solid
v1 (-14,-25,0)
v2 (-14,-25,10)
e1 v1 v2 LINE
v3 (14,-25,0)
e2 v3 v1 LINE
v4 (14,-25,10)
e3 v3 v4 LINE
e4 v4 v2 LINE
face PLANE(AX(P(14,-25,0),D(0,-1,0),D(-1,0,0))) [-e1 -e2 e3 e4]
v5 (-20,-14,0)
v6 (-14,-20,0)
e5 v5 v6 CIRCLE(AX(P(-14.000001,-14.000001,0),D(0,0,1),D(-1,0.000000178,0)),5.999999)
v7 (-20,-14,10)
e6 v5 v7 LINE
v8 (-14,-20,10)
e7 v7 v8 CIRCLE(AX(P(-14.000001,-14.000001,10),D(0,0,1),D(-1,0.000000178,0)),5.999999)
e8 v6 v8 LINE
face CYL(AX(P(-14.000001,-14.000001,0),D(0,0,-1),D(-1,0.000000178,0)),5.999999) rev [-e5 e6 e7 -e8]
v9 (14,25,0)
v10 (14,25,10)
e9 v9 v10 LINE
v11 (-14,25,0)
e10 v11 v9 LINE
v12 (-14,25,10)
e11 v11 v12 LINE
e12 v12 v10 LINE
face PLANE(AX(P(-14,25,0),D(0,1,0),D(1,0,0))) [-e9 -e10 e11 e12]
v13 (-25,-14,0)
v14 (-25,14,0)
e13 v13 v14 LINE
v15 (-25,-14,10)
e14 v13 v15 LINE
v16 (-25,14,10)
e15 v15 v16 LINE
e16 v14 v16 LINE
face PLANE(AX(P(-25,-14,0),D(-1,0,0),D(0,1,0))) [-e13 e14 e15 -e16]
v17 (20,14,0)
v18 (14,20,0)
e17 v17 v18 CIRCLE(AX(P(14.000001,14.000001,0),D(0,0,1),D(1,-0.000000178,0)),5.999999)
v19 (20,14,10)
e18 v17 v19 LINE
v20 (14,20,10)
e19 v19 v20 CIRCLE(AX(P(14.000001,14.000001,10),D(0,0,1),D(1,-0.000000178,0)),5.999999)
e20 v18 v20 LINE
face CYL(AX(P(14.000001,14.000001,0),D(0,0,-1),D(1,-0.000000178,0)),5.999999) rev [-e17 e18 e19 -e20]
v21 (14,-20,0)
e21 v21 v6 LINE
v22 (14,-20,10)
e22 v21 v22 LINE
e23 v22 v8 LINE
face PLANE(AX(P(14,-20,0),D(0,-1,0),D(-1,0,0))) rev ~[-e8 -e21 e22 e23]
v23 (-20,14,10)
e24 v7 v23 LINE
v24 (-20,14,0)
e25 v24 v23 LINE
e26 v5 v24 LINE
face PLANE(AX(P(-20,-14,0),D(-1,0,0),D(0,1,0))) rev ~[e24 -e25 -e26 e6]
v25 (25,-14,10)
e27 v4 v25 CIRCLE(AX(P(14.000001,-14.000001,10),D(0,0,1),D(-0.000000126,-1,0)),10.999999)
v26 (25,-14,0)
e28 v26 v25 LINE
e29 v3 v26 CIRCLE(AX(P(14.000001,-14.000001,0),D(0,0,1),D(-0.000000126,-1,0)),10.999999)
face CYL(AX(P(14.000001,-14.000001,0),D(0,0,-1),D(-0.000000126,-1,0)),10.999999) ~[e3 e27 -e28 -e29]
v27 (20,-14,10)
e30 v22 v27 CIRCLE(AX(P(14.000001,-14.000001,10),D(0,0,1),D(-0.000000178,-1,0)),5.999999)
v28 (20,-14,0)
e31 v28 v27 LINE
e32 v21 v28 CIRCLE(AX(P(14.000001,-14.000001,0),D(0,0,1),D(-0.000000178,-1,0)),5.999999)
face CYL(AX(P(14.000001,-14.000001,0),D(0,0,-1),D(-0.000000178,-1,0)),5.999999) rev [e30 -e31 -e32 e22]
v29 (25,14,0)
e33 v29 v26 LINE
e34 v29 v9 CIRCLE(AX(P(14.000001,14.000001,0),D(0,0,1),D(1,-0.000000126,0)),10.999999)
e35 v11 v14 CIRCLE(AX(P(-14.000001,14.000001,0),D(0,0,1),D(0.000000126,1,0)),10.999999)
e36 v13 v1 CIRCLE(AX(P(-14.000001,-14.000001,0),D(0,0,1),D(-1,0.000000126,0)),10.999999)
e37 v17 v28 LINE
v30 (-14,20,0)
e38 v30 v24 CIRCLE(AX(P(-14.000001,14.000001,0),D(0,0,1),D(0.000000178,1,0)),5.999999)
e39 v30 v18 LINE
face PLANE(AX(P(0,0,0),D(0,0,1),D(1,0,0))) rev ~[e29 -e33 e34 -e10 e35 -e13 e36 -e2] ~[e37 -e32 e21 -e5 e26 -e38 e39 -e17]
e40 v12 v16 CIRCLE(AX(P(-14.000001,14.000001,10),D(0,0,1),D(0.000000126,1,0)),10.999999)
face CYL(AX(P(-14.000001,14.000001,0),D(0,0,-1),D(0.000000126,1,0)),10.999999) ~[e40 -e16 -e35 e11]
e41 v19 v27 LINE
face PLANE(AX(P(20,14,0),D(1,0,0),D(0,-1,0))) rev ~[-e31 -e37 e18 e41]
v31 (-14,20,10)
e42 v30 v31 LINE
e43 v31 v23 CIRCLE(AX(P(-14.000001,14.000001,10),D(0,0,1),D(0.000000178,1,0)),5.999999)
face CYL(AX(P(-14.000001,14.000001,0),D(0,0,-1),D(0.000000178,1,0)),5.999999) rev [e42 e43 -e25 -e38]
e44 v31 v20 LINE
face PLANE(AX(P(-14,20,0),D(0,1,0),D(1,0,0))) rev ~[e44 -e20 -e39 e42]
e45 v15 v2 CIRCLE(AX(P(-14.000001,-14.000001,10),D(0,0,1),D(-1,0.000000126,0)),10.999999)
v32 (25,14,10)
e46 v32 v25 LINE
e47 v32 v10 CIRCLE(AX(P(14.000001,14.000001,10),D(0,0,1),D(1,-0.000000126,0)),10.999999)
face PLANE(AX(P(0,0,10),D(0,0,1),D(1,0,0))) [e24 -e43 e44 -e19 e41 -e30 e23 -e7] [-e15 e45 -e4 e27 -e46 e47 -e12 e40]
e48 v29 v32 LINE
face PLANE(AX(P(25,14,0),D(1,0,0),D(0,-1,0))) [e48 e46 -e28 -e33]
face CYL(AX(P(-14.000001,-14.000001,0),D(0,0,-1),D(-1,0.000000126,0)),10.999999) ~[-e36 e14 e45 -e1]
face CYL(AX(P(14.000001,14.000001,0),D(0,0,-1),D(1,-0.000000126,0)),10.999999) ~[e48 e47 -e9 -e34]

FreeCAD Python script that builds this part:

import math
import FreeCAD as App
import Part
import Sketcher
from FreeCAD import Vector
Q = App.Units.Quantity

doc = App.newDocument("Part")
body = doc.addObject("PartDesign::Body", "Body")

# Sketch on XY plane
sketch1 = body.newObject("Sketcher::SketchObject", "Sketch")
sketch1.AttachmentSupport = (doc.getObject("XY_Plane"), [""])
sketch1.MapMode = "FlatFace"
sketch1.addGeometry([
    Part.ArcOfCircle(Part.Circle(Vector(-14.000001, 14.000001, 0), Vector(0, 0, 1), 10.999999), math.radians(89.999993), math.radians(180.000007)),  # 0
    Part.LineSegment(Vector(-25, 14, 0), Vector(-25, -14, 0)),  # 1
    Part.ArcOfCircle(Part.Circle(Vector(-14.000001, -14.000001, 0), Vector(0, 0, 1), 10.999999), math.radians(179.999993), math.radians(270.000007)),  # 2
    Part.LineSegment(Vector(-14, -25, 0), Vector(14, -25, 0)),  # 3
    Part.ArcOfCircle(Part.Circle(Vector(14.000001, -14.000001, 0), Vector(0, 0, 1), 10.999999), math.radians(-90.000007), math.radians(0.000007)),  # 4
    Part.LineSegment(Vector(25, -14, 0), Vector(25, 14, 0)),  # 5
    Part.ArcOfCircle(Part.Circle(Vector(14.000001, 14.000001, 0), Vector(0, 0, 1), 10.999999), math.radians(-0.000007), math.radians(90.000007)),  # 6
    Part.LineSegment(Vector(14, 25, 0), Vector(-14, 25, 0)),  # 7
    Part.ArcOfCircle(Part.Circle(Vector(-14.000001, 14.000001, 0), Vector(0, 0, 1), 5.999999), math.radians(89.99999), math.radians(180.00001)),  # 8
    Part.LineSegment(Vector(-14, 20, 0), Vector(14, 20, 0)),  # 9
    Part.ArcOfCircle(Part.Circle(Vector(14.000001, 14.000001, 0), Vector(0, 0, 1), 5.999999), math.radians(-0.00001), math.radians(90.00001)),  # 10
    Part.LineSegment(Vector(20, 14, 0), Vector(20, -14, 0)),  # 11
    Part.ArcOfCircle(Part.Circle(Vector(14.000001, -14.000001, 0), Vector(0, 0, 1), 5.999999), math.radians(-90.00001), math.radians(0.00001)),  # 12
    Part.LineSegment(Vector(14, -20, 0), Vector(-14, -20, 0)),  # 13
    Part.ArcOfCircle(Part.Circle(Vector(-14.000001, -14.000001, 0), Vector(0, 0, 1), 5.999999), math.radians(179.99999), math.radians(270.00001)),  # 14
    Part.LineSegment(Vector(-20, -14, 0), Vector(-20, 14, 0)),  # 15
], False)
sketch1.addConstraint([
    Sketcher.Constraint("Tangent", 0, 2, 1, 1),
    Sketcher.Constraint("Tangent", 1, 2, 2, 1),
    Sketcher.Constraint("Tangent", 2, 2, 3, 1),
    Sketcher.Constraint("Tangent", 3, 2, 4, 1),
    Sketcher.Constraint("Tangent", 4, 2, 5, 1),
    Sketcher.Constraint("Tangent", 5, 2, 6, 1),
    Sketcher.Constraint("Tangent", 6, 2, 7, 1),
    Sketcher.Constraint("Tangent", 7, 2, 0, 1),
    Sketcher.Constraint("Tangent", 8, 1, 9, 1),
    Sketcher.Constraint("Tangent", 9, 2, 10, 2),
    Sketcher.Constraint("Tangent", 10, 1, 11, 1),
    Sketcher.Constraint("Tangent", 11, 2, 12, 2),
    Sketcher.Constraint("Tangent", 12, 1, 13, 1),
    Sketcher.Constraint("Tangent", 13, 2, 14, 2),
    Sketcher.Constraint("Tangent", 14, 1, 15, 1),
    Sketcher.Constraint("Tangent", 15, 2, 8, 2),
    Sketcher.Constraint("Vertical", 1),
    Sketcher.Constraint("Horizontal", 3),
    Sketcher.Constraint("Vertical", 5),
    Sketcher.Constraint("Horizontal", 7),
    Sketcher.Constraint("Horizontal", 9),
    Sketcher.Constraint("Vertical", 11),
    Sketcher.Constraint("Horizontal", 13),
    Sketcher.Constraint("Vertical", 15),
    Sketcher.Constraint("Coincident", 8, 3, 0, 3),
    Sketcher.Constraint("Coincident", 10, 3, 6, 3),
    Sketcher.Constraint("Coincident", 12, 3, 4, 3),
    Sketcher.Constraint("Equal", 0, 2),
    Sketcher.Constraint("Equal", 2, 4),
    Sketcher.Constraint("Equal", 4, 6),
    Sketcher.Constraint("Equal", 12, 14),
    Sketcher.Constraint("Symmetric", 0, 3, 4, 3, -1, 1),
    Sketcher.Constraint("Equal", 13, 1),
    Sketcher.Constraint("Radius", 0, Q("10.999999 mm")),
    Sketcher.Constraint("Radius", 8, Q("5.999999 mm")),
    Sketcher.Constraint("DistanceX", 3, 1, 3, 2, Q("28 mm")),
])
pad1 = body.newObject("PartDesign::Pad", "Pad")
pad1.Profile = sketch1
pad1.Length = 10

doc.recompute()
